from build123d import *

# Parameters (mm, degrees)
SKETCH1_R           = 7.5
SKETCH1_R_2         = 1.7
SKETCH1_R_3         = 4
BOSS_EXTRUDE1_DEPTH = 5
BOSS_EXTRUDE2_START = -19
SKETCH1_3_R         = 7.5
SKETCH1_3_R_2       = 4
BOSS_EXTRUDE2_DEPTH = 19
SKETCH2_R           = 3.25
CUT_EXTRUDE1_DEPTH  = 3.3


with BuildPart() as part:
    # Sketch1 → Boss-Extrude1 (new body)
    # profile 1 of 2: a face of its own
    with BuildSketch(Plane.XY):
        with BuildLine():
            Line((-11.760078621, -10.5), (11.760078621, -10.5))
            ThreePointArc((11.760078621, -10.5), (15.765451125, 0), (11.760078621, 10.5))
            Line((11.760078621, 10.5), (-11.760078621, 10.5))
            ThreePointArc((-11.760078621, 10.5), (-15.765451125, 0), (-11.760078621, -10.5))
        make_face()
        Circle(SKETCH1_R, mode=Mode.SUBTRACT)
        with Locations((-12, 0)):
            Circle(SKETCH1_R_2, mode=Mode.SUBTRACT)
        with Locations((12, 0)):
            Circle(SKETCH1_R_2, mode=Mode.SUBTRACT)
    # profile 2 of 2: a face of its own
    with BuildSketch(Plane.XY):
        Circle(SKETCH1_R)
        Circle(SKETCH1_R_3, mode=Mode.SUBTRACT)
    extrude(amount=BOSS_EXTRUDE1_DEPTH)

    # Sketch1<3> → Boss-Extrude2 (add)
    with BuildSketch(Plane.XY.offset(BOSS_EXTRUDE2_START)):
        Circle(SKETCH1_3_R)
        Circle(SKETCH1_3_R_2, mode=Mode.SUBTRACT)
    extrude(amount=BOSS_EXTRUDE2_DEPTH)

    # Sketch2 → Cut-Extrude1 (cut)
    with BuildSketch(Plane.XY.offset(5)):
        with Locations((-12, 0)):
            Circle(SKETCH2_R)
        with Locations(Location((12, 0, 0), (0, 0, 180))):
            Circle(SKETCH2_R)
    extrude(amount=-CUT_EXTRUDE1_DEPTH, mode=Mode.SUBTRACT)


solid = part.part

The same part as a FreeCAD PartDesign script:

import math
import FreeCAD as App
import Part
import Sketcher

V = App.Vector
Q = App.Units.Quantity

doc = App.newDocument("Part")
body = doc.addObject("PartDesign::Body", "Body")

# Sketch on XY plane
sketch1 = doc.addObject("Sketcher::SketchObject", "Sketch")
body.addObject(sketch1)
sketch1.AttachmentSupport = (doc.XY_Plane, [""])
sketch1.MapMode = "FlatFace"
sketch1.addGeometry([
    Part.LineSegment(V(-11.8, -10.5, 0), V(11.8, -10.5, 0)),  # 0
    Part.ArcOfCircle(Part.Circle(V(0, 0, 0), V(0, 0, 1), 15.8), math.radians(-42), math.radians(42)),  # 1
    Part.LineSegment(V(11.8, 10.5, 0), V(-11.8, 10.5, 0)),  # 2
    Part.ArcOfCircle(Part.Circle(V(0, 0, 0), V(0, 0, 1), 15.8), math.radians(138), math.radians(222)),  # 3
    Part.Circle(V(-12, 0, 0), V(0, 0, 1), 1.7),  # 4
    Part.Circle(V(12, 0, 0), V(0, 0, 1), 1.7),  # 5
    Part.Circle(V(0, 0, 0), V(0, 0, 1), 4),  # 6
], False)
sketch1.addConstraint([
    Sketcher.Constraint("Coincident", 0, 2, 1, 1),
    Sketcher.Constraint("Coincident", 1, 2, 2, 1),
    Sketcher.Constraint("Coincident", 2, 2, 3, 1),
    Sketcher.Constraint("Coincident", 3, 2, 0, 1),
    Sketcher.Constraint("Horizontal", 0),
    Sketcher.Constraint("Horizontal", 2),
    Sketcher.Constraint("Coincident", 1, 3, -1, 1),
    Sketcher.Constraint("Coincident", 3, 3, -1, 1),
    Sketcher.Constraint("Coincident", 6, 3, -1, 1),
    Sketcher.Constraint("Equal", 1, 3),
    Sketcher.Constraint("Equal", 4, 5),
    Sketcher.Constraint("Symmetric", 4, 3, 5, 3, -1, 1),
    Sketcher.Constraint("PointOnObject", 4, 3, -1),
    Sketcher.Constraint("Vertical", 0, 2, 1, 2),
    Sketcher.Constraint("Diameter", 6, Q("8 mm")),
    Sketcher.Constraint("Diameter", 4, Q("3.4 mm")),
    Sketcher.Constraint("DistanceX", 4, 3, -1, 1, Q("12 mm")),
    Sketcher.Constraint("DistanceY", 0, 2, 1, 2, Q("21 mm")),
    Sketcher.Constraint("Radius", 1, Q("15.765451 mm")),
])
pad1 = doc.addObject("PartDesign::Pad", "Pad")
body.addObject(pad1)
pad1.Profile = sketch1
pad1.Length = 5

# Sketch on XY plane
sketch2 = doc.addObject("Sketcher::SketchObject", "Sketch001")
body.addObject(sketch2)
sketch2.AttachmentSupport = (doc.XY_Plane, [""])
sketch2.MapMode = "FlatFace"
sketch2.AttachmentOffset = App.Placement(V(0, 0, -19), App.Rotation())
sketch2.addGeometry([
    Part.Circle(V(0, 0, 0), V(0, 0, 1), 7.5),
    Part.Circle(V(0, 0, 0), V(0, 0, 1), 4),
], False)
sketch2.addConstraint([
    Sketcher.Constraint("Coincident", 0, 3, -1, 1),
    Sketcher.Constraint("Coincident", 1, 3, -1, 1),
    Sketcher.Constraint("Diameter", 0, Q("15 mm")),
    Sketcher.Constraint("Diameter", 1, Q("8 mm")),
])
pad2 = doc.addObject("PartDesign::Pad", "Pad001")
body.addObject(pad2)
pad2.Profile = sketch2
pad2.Length = 19

# Sketch on XY plane
sketch3 = doc.addObject("Sketcher::SketchObject", "Sketch002")
body.addObject(sketch3)
sketch3.AttachmentSupport = (doc.XY_Plane, [""])
sketch3.MapMode = "FlatFace"
sketch3.AttachmentOffset = App.Placement(V(0, 0, 5), App.Rotation())
sketch3.addGeometry([
    Part.Circle(V(-12, 0, 0), V(0, 0, 1), 3.2),
    Part.Circle(V(12, 0, 0), V(0, 0, 1), 3.2),
], False)
sketch3.addConstraint([
    Sketcher.Constraint("Equal", 0, 1),
    Sketcher.Constraint("Symmetric", 0, 3, 1, 3, -1, 1),
    Sketcher.Constraint("PointOnObject", 0, 3, -1),
    Sketcher.Constraint("Diameter", 0, Q("6.5 mm")),
    Sketcher.Constraint("DistanceX", 0, 3, -1, 1, Q("12 mm")),
])
pocket1 = doc.addObject("PartDesign::Pocket", "Pocket")
body.addObject(pocket1)
pocket1.Profile = sketch3
pocket1.Length = 3.3

doc.recompute()
